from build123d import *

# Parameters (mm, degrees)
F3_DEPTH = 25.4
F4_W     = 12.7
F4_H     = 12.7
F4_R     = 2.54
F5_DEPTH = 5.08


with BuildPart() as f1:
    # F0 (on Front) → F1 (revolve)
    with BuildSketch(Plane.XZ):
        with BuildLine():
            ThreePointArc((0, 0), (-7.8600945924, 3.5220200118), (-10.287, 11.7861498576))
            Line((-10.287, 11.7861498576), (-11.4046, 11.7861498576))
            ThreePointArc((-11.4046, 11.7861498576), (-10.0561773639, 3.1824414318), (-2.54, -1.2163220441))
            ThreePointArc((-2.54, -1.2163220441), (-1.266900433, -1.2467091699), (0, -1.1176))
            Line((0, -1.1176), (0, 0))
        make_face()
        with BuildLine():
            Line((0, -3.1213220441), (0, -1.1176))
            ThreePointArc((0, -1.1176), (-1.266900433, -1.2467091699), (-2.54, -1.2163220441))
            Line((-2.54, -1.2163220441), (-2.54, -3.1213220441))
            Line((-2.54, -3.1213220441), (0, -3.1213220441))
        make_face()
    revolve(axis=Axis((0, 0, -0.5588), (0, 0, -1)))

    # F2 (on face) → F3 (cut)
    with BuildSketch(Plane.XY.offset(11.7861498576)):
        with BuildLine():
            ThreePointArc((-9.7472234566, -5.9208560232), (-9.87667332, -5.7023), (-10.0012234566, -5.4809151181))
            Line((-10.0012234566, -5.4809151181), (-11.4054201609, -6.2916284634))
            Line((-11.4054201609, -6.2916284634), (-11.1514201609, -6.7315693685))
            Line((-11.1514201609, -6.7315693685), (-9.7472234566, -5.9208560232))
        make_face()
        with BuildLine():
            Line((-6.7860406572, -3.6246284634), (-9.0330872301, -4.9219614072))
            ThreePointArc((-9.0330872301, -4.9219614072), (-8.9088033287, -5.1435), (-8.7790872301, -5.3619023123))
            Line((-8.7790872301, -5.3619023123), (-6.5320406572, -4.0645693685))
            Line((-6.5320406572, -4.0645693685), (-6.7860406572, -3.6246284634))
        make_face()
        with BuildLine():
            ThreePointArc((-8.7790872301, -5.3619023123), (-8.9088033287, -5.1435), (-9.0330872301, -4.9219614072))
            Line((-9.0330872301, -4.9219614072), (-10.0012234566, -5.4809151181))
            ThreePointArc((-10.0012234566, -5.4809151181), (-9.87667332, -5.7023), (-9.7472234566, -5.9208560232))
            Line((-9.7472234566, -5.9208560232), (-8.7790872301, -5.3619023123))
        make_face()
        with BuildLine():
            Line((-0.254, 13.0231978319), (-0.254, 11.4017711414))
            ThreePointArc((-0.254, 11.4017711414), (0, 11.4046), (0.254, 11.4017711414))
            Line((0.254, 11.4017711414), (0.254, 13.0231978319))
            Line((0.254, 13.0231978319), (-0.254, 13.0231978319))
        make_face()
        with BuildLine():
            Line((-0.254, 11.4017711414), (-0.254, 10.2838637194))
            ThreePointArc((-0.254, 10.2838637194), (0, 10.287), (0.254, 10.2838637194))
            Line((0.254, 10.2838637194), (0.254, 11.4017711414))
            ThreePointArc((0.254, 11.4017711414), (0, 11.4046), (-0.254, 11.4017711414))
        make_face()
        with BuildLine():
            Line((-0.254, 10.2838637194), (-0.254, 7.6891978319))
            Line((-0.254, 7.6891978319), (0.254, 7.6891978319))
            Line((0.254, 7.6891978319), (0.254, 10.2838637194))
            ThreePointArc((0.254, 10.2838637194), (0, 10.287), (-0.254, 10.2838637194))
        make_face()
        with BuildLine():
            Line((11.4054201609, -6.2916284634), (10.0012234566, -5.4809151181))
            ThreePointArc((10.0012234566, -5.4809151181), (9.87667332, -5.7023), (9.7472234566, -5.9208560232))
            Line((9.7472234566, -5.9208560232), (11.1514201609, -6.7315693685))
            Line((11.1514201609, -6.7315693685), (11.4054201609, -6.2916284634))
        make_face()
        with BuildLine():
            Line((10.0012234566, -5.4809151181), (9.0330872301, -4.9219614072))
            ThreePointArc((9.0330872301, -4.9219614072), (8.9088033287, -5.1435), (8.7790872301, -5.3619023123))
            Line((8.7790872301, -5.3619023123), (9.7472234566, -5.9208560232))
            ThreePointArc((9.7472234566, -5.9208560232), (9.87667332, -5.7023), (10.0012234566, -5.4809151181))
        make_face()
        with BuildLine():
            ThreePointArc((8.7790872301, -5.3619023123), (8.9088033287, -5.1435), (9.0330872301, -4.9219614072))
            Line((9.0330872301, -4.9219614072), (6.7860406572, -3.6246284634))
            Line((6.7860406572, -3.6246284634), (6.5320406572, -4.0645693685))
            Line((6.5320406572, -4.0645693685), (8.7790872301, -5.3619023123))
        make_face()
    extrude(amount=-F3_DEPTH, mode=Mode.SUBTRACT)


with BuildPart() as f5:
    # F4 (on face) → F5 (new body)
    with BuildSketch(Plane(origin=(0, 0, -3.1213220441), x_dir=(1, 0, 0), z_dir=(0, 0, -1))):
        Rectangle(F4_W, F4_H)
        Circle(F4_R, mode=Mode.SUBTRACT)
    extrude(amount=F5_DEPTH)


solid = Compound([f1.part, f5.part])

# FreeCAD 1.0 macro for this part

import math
import FreeCAD as App
import Part
import Sketcher
Q = App.Units.Quantity

doc = App.newDocument("Part")
body = doc.addObject("PartDesign::Body", "Body")

sketch1 = body.newObject("Sketcher::SketchObject", "Sketch")
sketch1.AttachmentSupport = (doc.getObject("XZ_Plane"), [""])
sketch1.MapMode = "FlatFace"
sketch1.addGeometry([
    Part.ArcOfCircle(Part.Circle(App.Vector(-0.1, 10.3, 0), App.Vector(0, 0, 1), 10.3), math.radians(172), math.radians(271)),
    Part.LineSegment(App.Vector(-10.3, 11.8, 0), App.Vector(-11.4, 11.8, 0)),
    Part.ArcOfCircle(Part.Circle(App.Vector(-1.7, 8.9, 0), App.Vector(0, 0, 1), 10.2), math.radians(164), math.radians(265)),
    Part.LineSegment(App.Vector(-2.5, -1.2, 0), App.Vector(-2.5, -3.1, 0)),
    Part.LineSegment(App.Vector(-2.5, -3.1, 0), App.Vector(0, -3.1, 0)),
    Part.LineSegment(App.Vector(0, -3.1, 0), App.Vector(0, 0, 0)),
], False)
sketch1.addConstraint([
    Sketcher.Constraint("Coincident", 0, 1, 1, 1),
    Sketcher.Constraint("Coincident", 1, 2, 2, 1),
    Sketcher.Constraint("Coincident", 2, 2, 3, 1),
    Sketcher.Constraint("Coincident", 3, 2, 4, 1),
    Sketcher.Constraint("Coincident", 4, 2, 5, 1),
    Sketcher.Constraint("Coincident", 5, 2, 0, 2),
    Sketcher.Constraint("Horizontal", 1),
    Sketcher.Constraint("Vertical", 3),
    Sketcher.Constraint("Horizontal", 4),
    Sketcher.Constraint("Vertical", 5),
    Sketcher.Constraint("Coincident", 5, 2, -1, 1),
    Sketcher.Constraint("Radius", 2, Q("0.4 in")),
    Sketcher.Constraint("DistanceX", 4, 1, 4, 2, Q("0.1 in")),
    Sketcher.Constraint("Radius", 0, Q("0.405 in")),
    Sketcher.Constraint("DistanceX", 1, 2, 1, 1, Q("0.044 in")),
    Sketcher.Constraint("DistanceY", 3, 2, 3, 1, Q("0.075 in")),
    Sketcher.Constraint("DistanceX", 0, 1, -1, 1, Q("0.405 in")),
    Sketcher.Constraint("DistanceY", 5, 1, 5, 2, 3.121322),
    Sketcher.Constraint("DistanceX", 0, 3, -1, 1, 0.10991),
])
revolution = body.newObject("PartDesign::Revolution", "Revolution")
revolution.Profile = sketch1
revolution.ReferenceAxis = (sketch1, ["V_Axis"])
revolution.Angle = 360

sketch2 = body.newObject("Sketcher::SketchObject", "Sketch001")
sketch2.AttachmentSupport = (doc.getObject("XY_Plane"), [""])
sketch2.MapMode = "FlatFace"
sketch2.AttachmentOffset = App.Placement(App.Vector(0, 0, 11.78615), App.Rotation())
sketch2.addGeometry([
    Part.LineSegment(App.Vector(-10, -5.5, 0), App.Vector(-11.4, -6.3, 0)),
    Part.LineSegment(App.Vector(-11.4, -6.3, 0), App.Vector(-11.2, -6.7, 0)),
    Part.LineSegment(App.Vector(-11.2, -6.7, 0), App.Vector(-9.7, -5.9, 0)),
    Part.LineSegment(App.Vector(-9.7, -5.9, 0), App.Vector(-8.8, -5.4, 0)),
    Part.LineSegment(App.Vector(-8.8, -5.4, 0), App.Vector(-6.5, -4.1, 0)),
    Part.LineSegment(App.Vector(-6.5, -4.1, 0), App.Vector(-6.8, -3.6, 0)),
    Part.LineSegment(App.Vector(-6.8, -3.6, 0), App.Vector(-9, -4.9, 0)),
    Part.LineSegment(App.Vector(-9, -4.9, 0), App.Vector(-10, -5.5, 0)),
    Part.LineSegment(App.Vector(-0.3, 13, 0), App.Vector(-0.3, 7.7, 0)),
    Part.LineSegment(App.Vector(-0.3, 7.7, 0), App.Vector(0.3, 7.7, 0)),
    Part.LineSegment(App.Vector(0.3, 7.7, 0), App.Vector(0.3, 13, 0)),
    Part.LineSegment(App.Vector(0.3, 13, 0), App.Vector(-0.3, 13, 0)),
    Part.LineSegment(App.Vector(11.4, -6.3, 0), App.Vector(10, -5.5, 0)),
    Part.LineSegment(App.Vector(10, -5.5, 0), App.Vector(9, -4.9, 0)),
    Part.LineSegment(App.Vector(9, -4.9, 0), App.Vector(6.8, -3.6, 0)),
    Part.LineSegment(App.Vector(6.8, -3.6, 0), App.Vector(6.5, -4.1, 0)),
    Part.LineSegment(App.Vector(6.5, -4.1, 0), App.Vector(8.8, -5.4, 0)),
    Part.LineSegment(App.Vector(8.8, -5.4, 0), App.Vector(9.7, -5.9, 0)),
    Part.LineSegment(App.Vector(9.7, -5.9, 0), App.Vector(11.2, -6.7, 0)),
    Part.LineSegment(App.Vector(11.2, -6.7, 0), App.Vector(11.4, -6.3, 0)),
], False)
sketch2.addConstraint([
    Sketcher.Constraint("Coincident", 0, 2, 1, 1),
    Sketcher.Constraint("Coincident", 1, 2, 2, 1),
    Sketcher.Constraint("Coincident", 2, 2, 3, 1),
    Sketcher.Constraint("Coincident", 3, 2, 4, 1),
    Sketcher.Constraint("Coincident", 4, 2, 5, 1),
    Sketcher.Constraint("Coincident", 5, 2, 6, 1),
    Sketcher.Constraint("Coincident", 6, 2, 7, 1),
    Sketcher.Constraint("Coincident", 7, 2, 0, 1),
    Sketcher.Constraint("Coincident", 8, 2, 9, 1),
    Sketcher.Constraint("Coincident", 9, 2, 10, 1),
    Sketcher.Constraint("Coincident", 10, 2, 11, 1),
    Sketcher.Constraint("Coincident", 11, 2, 8, 1),
    Sketcher.Constraint("Coincident", 12, 2, 13, 1),
    Sketcher.Constraint("Coincident", 13, 2, 14, 1),
    Sketcher.Constraint("Coincident", 14, 2, 15, 1),
    Sketcher.Constraint("Coincident", 15, 2, 16, 1),
    Sketcher.Constraint("Coincident", 16, 2, 17, 1),
    Sketcher.Constraint("Coincident", 17, 2, 18, 1),
    Sketcher.Constraint("Coincident", 18, 2, 19, 1),
    Sketcher.Constraint("Coincident", 19, 2, 12, 1),
    Sketcher.Constraint("Vertical", 8),
    Sketcher.Constraint("Horizontal", 9),
    Sketcher.Constraint("Vertical", 10),
    Sketcher.Constraint("Horizontal", 11),
    Sketcher.Constraint("Symmetric", 7, 2, 12, 2, -2),
    Sketcher.Constraint("Symmetric", 6, 2, 13, 2, -2),
    Sketcher.Constraint("Symmetric", 5, 2, 14, 2, -2),
    Sketcher.Constraint("Symmetric", 4, 2, 15, 2, -2),
    Sketcher.Constraint("Symmetric", 3, 2, 16, 2, -2),
    Sketcher.Constraint("Symmetric", 2, 2, 17, 2, -2),
    Sketcher.Constraint("Symmetric", 1, 2, 18, 2, -2),
    Sketcher.Constraint("Symmetric", 0, 2, 19, 2, -2),
    Sketcher.Constraint("Perpendicular", 0, 1),
    Sketcher.Constraint("Perpendicular", 1, 2),
    Sketcher.Constraint("Parallel", 2, 3),
    Sketcher.Constraint("Parallel", 3, 4),
    Sketcher.Constraint("Perpendicular", 4, 5),
    Sketcher.Constraint("Perpendicular", 5, 6),
    Sketcher.Constraint("Parallel", 6, 7),
    Sketcher.Constraint("Equal", 0, 2),
    Sketcher.Constraint("Equal", 4, 6),
    Sketcher.Constraint("Angle", 0, Q("-150 deg")),
    Sketcher.Constraint("DistanceX", 9, 1, 9, 2, Q("0.02 in")),
    Sketcher.Constraint("DistanceY", 8, 2, 8, 1, Q("0.21 in")),
    Sketcher.Constraint("Distance", 1, Q("0.02 in")),
    Sketcher.Constraint("DistanceX", 8, 2, -1, 1, Q("0.01 in")),
    Sketcher.Constraint("DistanceY", 1, 2, 4, 2, Q("0.105 in")),
    Sketcher.Constraint("DistanceY", 3, 2, 8, 2, 13.0511),
    Sketcher.Constraint("DistanceX", 0, 2, -1, 1, 11.40542),
    Sketcher.Constraint("DistanceY", 0, 2, -1, 1, 6.291628),
    Sketcher.Constraint("DistanceY", 6, 2, -1, 1, 4.921961),
    Sketcher.Constraint("DistanceX", 3, 2, 12, 2, 18.780311),
])
pocket1 = body.newObject("PartDesign::Pocket", "Pocket")
pocket1.Profile = sketch2
pocket1.Length = Q("1 in")
body2 = doc.addObject("PartDesign::Body", "Body001")

sketch3 = body2.newObject("Sketcher::SketchObject", "Sketch002")
sketch3.AttachmentSupport = (doc.getObject("XY_Plane001"), [""])
sketch3.MapMode = "FlatFace"
sketch3.AttachmentOffset = App.Placement(App.Vector(0, 0, -3.121322), App.Rotation())
sketch3.addGeometry([
    Part.LineSegment(App.Vector(-6.3, -6.3, 0), App.Vector(-6.3, 6.3, 0)),
    Part.LineSegment(App.Vector(-6.3, 6.3, 0), App.Vector(6.3, 6.3, 0)),
    Part.LineSegment(App.Vector(6.3, 6.3, 0), App.Vector(6.3, -6.3, 0)),
    Part.LineSegment(App.Vector(6.3, -6.3, 0), App.Vector(-6.3, -6.3, 0)),
    Part.Circle(App.Vector(0, 0, 0), App.Vector(0, 0, 1), 2.5),
], False)
sketch3.addConstraint([
    Sketcher.Constraint("Coincident", 0, 2, 1, 1),
    Sketcher.Constraint("Coincident", 1, 2, 2, 1),
    Sketcher.Constraint("Coincident", 2, 2, 3, 1),
    Sketcher.Constraint("Coincident", 3, 2, 0, 1),
    Sketcher.Constraint("Vertical", 0),
    Sketcher.Constraint("Horizontal", 1),
    Sketcher.Constraint("Vertical", 2),
    Sketcher.Constraint("Horizontal", 3),
    Sketcher.Constraint("Coincident", 4, 3, -1, 1),
    Sketcher.Constraint("Symmetric", 0, 2, 2, 2, -1, 1),
    Sketcher.Constraint("Equal", 3, 0),
    Sketcher.Constraint("Diameter", 4, Q("0.2 in")),
    Sketcher.Constraint("DistanceX", 1, 1, 1, 2, Q("0.5 in")),
])
pad1 = body2.newObject("PartDesign::Pad", "Pad")
pad1.Profile = sketch3
pad1.Length = Q("0.2 in")
pad1.Reversed = True

doc.recompute()
